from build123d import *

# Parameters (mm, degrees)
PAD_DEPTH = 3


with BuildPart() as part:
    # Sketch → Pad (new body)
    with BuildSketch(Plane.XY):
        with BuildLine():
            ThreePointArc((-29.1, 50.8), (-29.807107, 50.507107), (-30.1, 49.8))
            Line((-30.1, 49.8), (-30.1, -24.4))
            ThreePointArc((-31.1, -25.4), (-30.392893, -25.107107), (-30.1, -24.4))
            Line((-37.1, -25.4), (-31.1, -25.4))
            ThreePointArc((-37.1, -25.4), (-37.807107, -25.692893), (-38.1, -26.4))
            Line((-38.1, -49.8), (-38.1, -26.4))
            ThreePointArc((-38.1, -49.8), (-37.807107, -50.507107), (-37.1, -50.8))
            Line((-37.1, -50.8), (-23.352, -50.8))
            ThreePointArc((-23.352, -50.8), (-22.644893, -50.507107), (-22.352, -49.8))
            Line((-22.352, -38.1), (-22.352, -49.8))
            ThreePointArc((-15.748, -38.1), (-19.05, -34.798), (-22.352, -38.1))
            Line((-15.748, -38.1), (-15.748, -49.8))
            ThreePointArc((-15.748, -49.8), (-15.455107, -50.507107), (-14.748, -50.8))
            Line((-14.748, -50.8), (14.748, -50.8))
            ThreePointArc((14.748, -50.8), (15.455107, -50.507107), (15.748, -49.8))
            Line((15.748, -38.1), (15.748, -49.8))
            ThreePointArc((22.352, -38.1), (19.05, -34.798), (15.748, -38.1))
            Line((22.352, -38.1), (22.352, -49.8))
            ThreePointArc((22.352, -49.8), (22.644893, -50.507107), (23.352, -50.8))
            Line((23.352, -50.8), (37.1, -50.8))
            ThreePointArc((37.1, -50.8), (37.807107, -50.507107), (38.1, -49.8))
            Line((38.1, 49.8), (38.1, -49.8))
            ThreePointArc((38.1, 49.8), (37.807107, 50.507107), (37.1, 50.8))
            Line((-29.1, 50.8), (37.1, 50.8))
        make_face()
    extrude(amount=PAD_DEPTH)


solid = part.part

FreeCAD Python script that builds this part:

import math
import FreeCAD as App
import Part
import Sketcher

V = App.Vector

doc = App.newDocument("Part")
body = doc.addObject("PartDesign::Body", "Body")

sketch1 = body.newObject("Sketcher::SketchObject", "Sketch")
sketch1.AttachmentSupport = (doc.getObject("XY_Plane"), [""])
sketch1.MapMode = "FlatFace"
sketch1.addGeometry(Part.ArcOfCircle(Part.Circle(V(-29.1, 49.8, 0), V(0, 0, 1), 1), math.radians(90), math.radians(180)), False)
sketch1.addGeometry(Part.LineSegment(V(-30.1, 49.8, 0), V(-30.1, -24.4, 0)), False)
sketch1.addGeometry(Part.ArcOfCircle(Part.Circle(V(-31.1, -24.4, 0), V(0, 0, 1), 1), math.radians(-90), math.radians(0)), False)
sketch1.addGeometry(Part.LineSegment(V(-31.1, -25.4, 0), V(-37.1, -25.4, 0)), False)
sketch1.addGeometry(Part.ArcOfCircle(Part.Circle(V(-37.1, -26.4, 0), V(0, 0, 1), 1), math.radians(90), math.radians(180)), False)
sketch1.addGeometry(Part.LineSegment(V(-38.1, -26.4, 0), V(-38.1, -49.8, 0)), False)
sketch1.addGeometry(Part.ArcOfCircle(Part.Circle(V(-37.1, -49.8, 0), V(0, 0, 1), 1), math.radians(180), math.radians(270)), False)
sketch1.addGeometry(Part.LineSegment(V(-37.1, -50.8, 0), V(-23.4, -50.8, 0)), False)
sketch1.addGeometry(Part.ArcOfCircle(Part.Circle(V(-23.4, -49.8, 0), V(0, 0, 1), 1), math.radians(-90), math.radians(0)), False)
sketch1.addGeometry(Part.LineSegment(V(-22.4, -49.8, 0), V(-22.4, -38.1, 0)), False)
sketch1.addGeometry(Part.ArcOfCircle(Part.Circle(V(-19.1, -38.1, 0), V(0, 0, 1), 3.3), math.radians(0), math.radians(180)), False)
sketch1.addGeometry(Part.LineSegment(V(-15.7, -38.1, 0), V(-15.7, -49.8, 0)), False)
sketch1.addGeometry(Part.ArcOfCircle(Part.Circle(V(-14.7, -49.8, 0), V(0, 0, 1), 1), math.radians(180), math.radians(270)), False)
sketch1.addGeometry(Part.LineSegment(V(-14.7, -50.8, 0), V(14.7, -50.8, 0)), False)
sketch1.addGeometry(Part.ArcOfCircle(Part.Circle(V(14.7, -49.8, 0), V(0, 0, 1), 1), math.radians(-90), math.radians(0)), False)
sketch1.addGeometry(Part.LineSegment(V(15.7, -49.8, 0), V(15.7, -38.1, 0)), False)
sketch1.addGeometry(Part.ArcOfCircle(Part.Circle(V(19.1, -38.1, 0), V(0, 0, 1), 3.3), math.radians(0), math.radians(180)), False)
sketch1.addGeometry(Part.LineSegment(V(22.4, -38.1, 0), V(22.4, -49.8, 0)), False)
sketch1.addGeometry(Part.ArcOfCircle(Part.Circle(V(23.4, -49.8, 0), V(0, 0, 1), 1), math.radians(180), math.radians(270)), False)
sketch1.addGeometry(Part.LineSegment(V(23.4, -50.8, 0), V(37.1, -50.8, 0)), False)
sketch1.addGeometry(Part.ArcOfCircle(Part.Circle(V(37.1, -49.8, 0), V(0, 0, 1), 1), math.radians(-90), math.radians(0)), False)
sketch1.addGeometry(Part.LineSegment(V(38.1, -49.8, 0), V(38.1, 49.8, 0)), False)
sketch1.addGeometry(Part.ArcOfCircle(Part.Circle(V(37.1, 49.8, 0), V(0, 0, 1), 1), math.radians(0), math.radians(90)), False)
sketch1.addGeometry(Part.LineSegment(V(37.1, 50.8, 0), V(-29.1, 50.8, 0)), False)
sketch1.addConstraint(Sketcher.Constraint("Tangent", 0, 2, 1, 1))
sketch1.addConstraint(Sketcher.Constraint("Tangent", 1, 2, 2, 2))
sketch1.addConstraint(Sketcher.Constraint("Tangent", 2, 1, 3, 1))
sketch1.addConstraint(Sketcher.Constraint("Tangent", 3, 2, 4, 1))
sketch1.addConstraint(Sketcher.Constraint("Tangent", 4, 2, 5, 1))
sketch1.addConstraint(Sketcher.Constraint("Tangent", 5, 2, 6, 1))
sketch1.addConstraint(Sketcher.Constraint("Tangent", 6, 2, 7, 1))
sketch1.addConstraint(Sketcher.Constraint("Tangent", 7, 2, 8, 1))
sketch1.addConstraint(Sketcher.Constraint("Tangent", 8, 2, 9, 1))
sketch1.addConstraint(Sketcher.Constraint("Tangent", 9, 2, 10, 2))
sketch1.addConstraint(Sketcher.Constraint("Tangent", 10, 1, 11, 1))
sketch1.addConstraint(Sketcher.Constraint("Tangent", 11, 2, 12, 1))
sketch1.addConstraint(Sketcher.Constraint("Tangent", 12, 2, 13, 1))
sketch1.addConstraint(Sketcher.Constraint("Tangent", 13, 2, 14, 1))
sketch1.addConstraint(Sketcher.Constraint("Tangent", 14, 2, 15, 1))
sketch1.addConstraint(Sketcher.Constraint("Tangent", 15, 2, 16, 2))
sketch1.addConstraint(Sketcher.Constraint("Tangent", 16, 1, 17, 1))
sketch1.addConstraint(Sketcher.Constraint("Tangent", 17, 2, 18, 1))
sketch1.addConstraint(Sketcher.Constraint("Tangent", 18, 2, 19, 1))
sketch1.addConstraint(Sketcher.Constraint("Tangent", 19, 2, 20, 1))
sketch1.addConstraint(Sketcher.Constraint("Tangent", 20, 2, 21, 1))
sketch1.addConstraint(Sketcher.Constraint("Tangent", 21, 2, 22, 1))
sketch1.addConstraint(Sketcher.Constraint("Tangent", 22, 2, 23, 1))
sketch1.addConstraint(Sketcher.Constraint("Tangent", 23, 2, 0, 1))
sketch1.addConstraint(Sketcher.Constraint("Vertical", 1))
sketch1.addConstraint(Sketcher.Constraint("Horizontal", 3))
sketch1.addConstraint(Sketcher.Constraint("Vertical", 5))
sketch1.addConstraint(Sketcher.Constraint("Horizontal", 7))
sketch1.addConstraint(Sketcher.Constraint("Vertical", 9))
sketch1.addConstraint(Sketcher.Constraint("Vertical", 11))
sketch1.addConstraint(Sketcher.Constraint("Horizontal", 13))
sketch1.addConstraint(Sketcher.Constraint("Vertical", 15))
sketch1.addConstraint(Sketcher.Constraint("Vertical", 17))
sketch1.addConstraint(Sketcher.Constraint("Horizontal", 19))
sketch1.addConstraint(Sketcher.Constraint("Vertical", 21))
sketch1.addConstraint(Sketcher.Constraint("Horizontal", 23))
sketch1.addConstraint(Sketcher.Constraint("Equal", 0, 2))
sketch1.addConstraint(Sketcher.Constraint("Equal", 2, 4))
sketch1.addConstraint(Sketcher.Constraint("Equal", 4, 6))
sketch1.addConstraint(Sketcher.Constraint("Equal", 6, 8))
sketch1.addConstraint(Sketcher.Constraint("Equal", 8, 12))
sketch1.addConstraint(Sketcher.Constraint("Equal", 12, 14))
sketch1.addConstraint(Sketcher.Constraint("Equal", 10, 16))
sketch1.addConstraint(Sketcher.Constraint("Equal", 14, 18))
sketch1.addConstraint(Sketcher.Constraint("Equal", 18, 20))
sketch1.addConstraint(Sketcher.Constraint("Equal", 20, 22))
sketch1.addConstraint(Sketcher.Constraint("Symmetric", 6, 3, 22, 3, -1, 1))
sketch1.addConstraint(Sketcher.Constraint("Symmetric", 10, 3, 16, 3, -2))
sketch1.addConstraint(Sketcher.Constraint("Horizontal", 8, 3, 12, 3))
sketch1.addConstraint(Sketcher.Constraint("Horizontal", 14, 3, 18, 3))
sketch1.addConstraint(Sketcher.Constraint("Radius", 0, 0.999999))
sketch1.addConstraint(Sketcher.Constraint("DistanceX", 3, 2, 3, 1, 6.0))
sketch1.addConstraint(Sketcher.Constraint("DistanceX", 23, 2, 23, 1, 66.2))
sketch1.addConstraint(Sketcher.Constraint("DistanceY", 1, 2, 1, 1, 74.2))
sketch1.addConstraint(Sketcher.Constraint("DistanceY", 5, 2, 5, 1, 23.4))
sketch1.addConstraint(Sketcher.Constraint("DistanceY", 9, 1, 9, 2, 11.7))
sketch1.addConstraint(Sketcher.Constraint("Radius", 10, 3.302))
sketch1.addConstraint(Sketcher.Constraint("DistanceX", 8, 3, 14, 3, 38.1))
pad1 = body.newObject("PartDesign::Pad", "Pad")
pad1.Profile = sketch1
pad1.Length = 3

doc.recompute()
